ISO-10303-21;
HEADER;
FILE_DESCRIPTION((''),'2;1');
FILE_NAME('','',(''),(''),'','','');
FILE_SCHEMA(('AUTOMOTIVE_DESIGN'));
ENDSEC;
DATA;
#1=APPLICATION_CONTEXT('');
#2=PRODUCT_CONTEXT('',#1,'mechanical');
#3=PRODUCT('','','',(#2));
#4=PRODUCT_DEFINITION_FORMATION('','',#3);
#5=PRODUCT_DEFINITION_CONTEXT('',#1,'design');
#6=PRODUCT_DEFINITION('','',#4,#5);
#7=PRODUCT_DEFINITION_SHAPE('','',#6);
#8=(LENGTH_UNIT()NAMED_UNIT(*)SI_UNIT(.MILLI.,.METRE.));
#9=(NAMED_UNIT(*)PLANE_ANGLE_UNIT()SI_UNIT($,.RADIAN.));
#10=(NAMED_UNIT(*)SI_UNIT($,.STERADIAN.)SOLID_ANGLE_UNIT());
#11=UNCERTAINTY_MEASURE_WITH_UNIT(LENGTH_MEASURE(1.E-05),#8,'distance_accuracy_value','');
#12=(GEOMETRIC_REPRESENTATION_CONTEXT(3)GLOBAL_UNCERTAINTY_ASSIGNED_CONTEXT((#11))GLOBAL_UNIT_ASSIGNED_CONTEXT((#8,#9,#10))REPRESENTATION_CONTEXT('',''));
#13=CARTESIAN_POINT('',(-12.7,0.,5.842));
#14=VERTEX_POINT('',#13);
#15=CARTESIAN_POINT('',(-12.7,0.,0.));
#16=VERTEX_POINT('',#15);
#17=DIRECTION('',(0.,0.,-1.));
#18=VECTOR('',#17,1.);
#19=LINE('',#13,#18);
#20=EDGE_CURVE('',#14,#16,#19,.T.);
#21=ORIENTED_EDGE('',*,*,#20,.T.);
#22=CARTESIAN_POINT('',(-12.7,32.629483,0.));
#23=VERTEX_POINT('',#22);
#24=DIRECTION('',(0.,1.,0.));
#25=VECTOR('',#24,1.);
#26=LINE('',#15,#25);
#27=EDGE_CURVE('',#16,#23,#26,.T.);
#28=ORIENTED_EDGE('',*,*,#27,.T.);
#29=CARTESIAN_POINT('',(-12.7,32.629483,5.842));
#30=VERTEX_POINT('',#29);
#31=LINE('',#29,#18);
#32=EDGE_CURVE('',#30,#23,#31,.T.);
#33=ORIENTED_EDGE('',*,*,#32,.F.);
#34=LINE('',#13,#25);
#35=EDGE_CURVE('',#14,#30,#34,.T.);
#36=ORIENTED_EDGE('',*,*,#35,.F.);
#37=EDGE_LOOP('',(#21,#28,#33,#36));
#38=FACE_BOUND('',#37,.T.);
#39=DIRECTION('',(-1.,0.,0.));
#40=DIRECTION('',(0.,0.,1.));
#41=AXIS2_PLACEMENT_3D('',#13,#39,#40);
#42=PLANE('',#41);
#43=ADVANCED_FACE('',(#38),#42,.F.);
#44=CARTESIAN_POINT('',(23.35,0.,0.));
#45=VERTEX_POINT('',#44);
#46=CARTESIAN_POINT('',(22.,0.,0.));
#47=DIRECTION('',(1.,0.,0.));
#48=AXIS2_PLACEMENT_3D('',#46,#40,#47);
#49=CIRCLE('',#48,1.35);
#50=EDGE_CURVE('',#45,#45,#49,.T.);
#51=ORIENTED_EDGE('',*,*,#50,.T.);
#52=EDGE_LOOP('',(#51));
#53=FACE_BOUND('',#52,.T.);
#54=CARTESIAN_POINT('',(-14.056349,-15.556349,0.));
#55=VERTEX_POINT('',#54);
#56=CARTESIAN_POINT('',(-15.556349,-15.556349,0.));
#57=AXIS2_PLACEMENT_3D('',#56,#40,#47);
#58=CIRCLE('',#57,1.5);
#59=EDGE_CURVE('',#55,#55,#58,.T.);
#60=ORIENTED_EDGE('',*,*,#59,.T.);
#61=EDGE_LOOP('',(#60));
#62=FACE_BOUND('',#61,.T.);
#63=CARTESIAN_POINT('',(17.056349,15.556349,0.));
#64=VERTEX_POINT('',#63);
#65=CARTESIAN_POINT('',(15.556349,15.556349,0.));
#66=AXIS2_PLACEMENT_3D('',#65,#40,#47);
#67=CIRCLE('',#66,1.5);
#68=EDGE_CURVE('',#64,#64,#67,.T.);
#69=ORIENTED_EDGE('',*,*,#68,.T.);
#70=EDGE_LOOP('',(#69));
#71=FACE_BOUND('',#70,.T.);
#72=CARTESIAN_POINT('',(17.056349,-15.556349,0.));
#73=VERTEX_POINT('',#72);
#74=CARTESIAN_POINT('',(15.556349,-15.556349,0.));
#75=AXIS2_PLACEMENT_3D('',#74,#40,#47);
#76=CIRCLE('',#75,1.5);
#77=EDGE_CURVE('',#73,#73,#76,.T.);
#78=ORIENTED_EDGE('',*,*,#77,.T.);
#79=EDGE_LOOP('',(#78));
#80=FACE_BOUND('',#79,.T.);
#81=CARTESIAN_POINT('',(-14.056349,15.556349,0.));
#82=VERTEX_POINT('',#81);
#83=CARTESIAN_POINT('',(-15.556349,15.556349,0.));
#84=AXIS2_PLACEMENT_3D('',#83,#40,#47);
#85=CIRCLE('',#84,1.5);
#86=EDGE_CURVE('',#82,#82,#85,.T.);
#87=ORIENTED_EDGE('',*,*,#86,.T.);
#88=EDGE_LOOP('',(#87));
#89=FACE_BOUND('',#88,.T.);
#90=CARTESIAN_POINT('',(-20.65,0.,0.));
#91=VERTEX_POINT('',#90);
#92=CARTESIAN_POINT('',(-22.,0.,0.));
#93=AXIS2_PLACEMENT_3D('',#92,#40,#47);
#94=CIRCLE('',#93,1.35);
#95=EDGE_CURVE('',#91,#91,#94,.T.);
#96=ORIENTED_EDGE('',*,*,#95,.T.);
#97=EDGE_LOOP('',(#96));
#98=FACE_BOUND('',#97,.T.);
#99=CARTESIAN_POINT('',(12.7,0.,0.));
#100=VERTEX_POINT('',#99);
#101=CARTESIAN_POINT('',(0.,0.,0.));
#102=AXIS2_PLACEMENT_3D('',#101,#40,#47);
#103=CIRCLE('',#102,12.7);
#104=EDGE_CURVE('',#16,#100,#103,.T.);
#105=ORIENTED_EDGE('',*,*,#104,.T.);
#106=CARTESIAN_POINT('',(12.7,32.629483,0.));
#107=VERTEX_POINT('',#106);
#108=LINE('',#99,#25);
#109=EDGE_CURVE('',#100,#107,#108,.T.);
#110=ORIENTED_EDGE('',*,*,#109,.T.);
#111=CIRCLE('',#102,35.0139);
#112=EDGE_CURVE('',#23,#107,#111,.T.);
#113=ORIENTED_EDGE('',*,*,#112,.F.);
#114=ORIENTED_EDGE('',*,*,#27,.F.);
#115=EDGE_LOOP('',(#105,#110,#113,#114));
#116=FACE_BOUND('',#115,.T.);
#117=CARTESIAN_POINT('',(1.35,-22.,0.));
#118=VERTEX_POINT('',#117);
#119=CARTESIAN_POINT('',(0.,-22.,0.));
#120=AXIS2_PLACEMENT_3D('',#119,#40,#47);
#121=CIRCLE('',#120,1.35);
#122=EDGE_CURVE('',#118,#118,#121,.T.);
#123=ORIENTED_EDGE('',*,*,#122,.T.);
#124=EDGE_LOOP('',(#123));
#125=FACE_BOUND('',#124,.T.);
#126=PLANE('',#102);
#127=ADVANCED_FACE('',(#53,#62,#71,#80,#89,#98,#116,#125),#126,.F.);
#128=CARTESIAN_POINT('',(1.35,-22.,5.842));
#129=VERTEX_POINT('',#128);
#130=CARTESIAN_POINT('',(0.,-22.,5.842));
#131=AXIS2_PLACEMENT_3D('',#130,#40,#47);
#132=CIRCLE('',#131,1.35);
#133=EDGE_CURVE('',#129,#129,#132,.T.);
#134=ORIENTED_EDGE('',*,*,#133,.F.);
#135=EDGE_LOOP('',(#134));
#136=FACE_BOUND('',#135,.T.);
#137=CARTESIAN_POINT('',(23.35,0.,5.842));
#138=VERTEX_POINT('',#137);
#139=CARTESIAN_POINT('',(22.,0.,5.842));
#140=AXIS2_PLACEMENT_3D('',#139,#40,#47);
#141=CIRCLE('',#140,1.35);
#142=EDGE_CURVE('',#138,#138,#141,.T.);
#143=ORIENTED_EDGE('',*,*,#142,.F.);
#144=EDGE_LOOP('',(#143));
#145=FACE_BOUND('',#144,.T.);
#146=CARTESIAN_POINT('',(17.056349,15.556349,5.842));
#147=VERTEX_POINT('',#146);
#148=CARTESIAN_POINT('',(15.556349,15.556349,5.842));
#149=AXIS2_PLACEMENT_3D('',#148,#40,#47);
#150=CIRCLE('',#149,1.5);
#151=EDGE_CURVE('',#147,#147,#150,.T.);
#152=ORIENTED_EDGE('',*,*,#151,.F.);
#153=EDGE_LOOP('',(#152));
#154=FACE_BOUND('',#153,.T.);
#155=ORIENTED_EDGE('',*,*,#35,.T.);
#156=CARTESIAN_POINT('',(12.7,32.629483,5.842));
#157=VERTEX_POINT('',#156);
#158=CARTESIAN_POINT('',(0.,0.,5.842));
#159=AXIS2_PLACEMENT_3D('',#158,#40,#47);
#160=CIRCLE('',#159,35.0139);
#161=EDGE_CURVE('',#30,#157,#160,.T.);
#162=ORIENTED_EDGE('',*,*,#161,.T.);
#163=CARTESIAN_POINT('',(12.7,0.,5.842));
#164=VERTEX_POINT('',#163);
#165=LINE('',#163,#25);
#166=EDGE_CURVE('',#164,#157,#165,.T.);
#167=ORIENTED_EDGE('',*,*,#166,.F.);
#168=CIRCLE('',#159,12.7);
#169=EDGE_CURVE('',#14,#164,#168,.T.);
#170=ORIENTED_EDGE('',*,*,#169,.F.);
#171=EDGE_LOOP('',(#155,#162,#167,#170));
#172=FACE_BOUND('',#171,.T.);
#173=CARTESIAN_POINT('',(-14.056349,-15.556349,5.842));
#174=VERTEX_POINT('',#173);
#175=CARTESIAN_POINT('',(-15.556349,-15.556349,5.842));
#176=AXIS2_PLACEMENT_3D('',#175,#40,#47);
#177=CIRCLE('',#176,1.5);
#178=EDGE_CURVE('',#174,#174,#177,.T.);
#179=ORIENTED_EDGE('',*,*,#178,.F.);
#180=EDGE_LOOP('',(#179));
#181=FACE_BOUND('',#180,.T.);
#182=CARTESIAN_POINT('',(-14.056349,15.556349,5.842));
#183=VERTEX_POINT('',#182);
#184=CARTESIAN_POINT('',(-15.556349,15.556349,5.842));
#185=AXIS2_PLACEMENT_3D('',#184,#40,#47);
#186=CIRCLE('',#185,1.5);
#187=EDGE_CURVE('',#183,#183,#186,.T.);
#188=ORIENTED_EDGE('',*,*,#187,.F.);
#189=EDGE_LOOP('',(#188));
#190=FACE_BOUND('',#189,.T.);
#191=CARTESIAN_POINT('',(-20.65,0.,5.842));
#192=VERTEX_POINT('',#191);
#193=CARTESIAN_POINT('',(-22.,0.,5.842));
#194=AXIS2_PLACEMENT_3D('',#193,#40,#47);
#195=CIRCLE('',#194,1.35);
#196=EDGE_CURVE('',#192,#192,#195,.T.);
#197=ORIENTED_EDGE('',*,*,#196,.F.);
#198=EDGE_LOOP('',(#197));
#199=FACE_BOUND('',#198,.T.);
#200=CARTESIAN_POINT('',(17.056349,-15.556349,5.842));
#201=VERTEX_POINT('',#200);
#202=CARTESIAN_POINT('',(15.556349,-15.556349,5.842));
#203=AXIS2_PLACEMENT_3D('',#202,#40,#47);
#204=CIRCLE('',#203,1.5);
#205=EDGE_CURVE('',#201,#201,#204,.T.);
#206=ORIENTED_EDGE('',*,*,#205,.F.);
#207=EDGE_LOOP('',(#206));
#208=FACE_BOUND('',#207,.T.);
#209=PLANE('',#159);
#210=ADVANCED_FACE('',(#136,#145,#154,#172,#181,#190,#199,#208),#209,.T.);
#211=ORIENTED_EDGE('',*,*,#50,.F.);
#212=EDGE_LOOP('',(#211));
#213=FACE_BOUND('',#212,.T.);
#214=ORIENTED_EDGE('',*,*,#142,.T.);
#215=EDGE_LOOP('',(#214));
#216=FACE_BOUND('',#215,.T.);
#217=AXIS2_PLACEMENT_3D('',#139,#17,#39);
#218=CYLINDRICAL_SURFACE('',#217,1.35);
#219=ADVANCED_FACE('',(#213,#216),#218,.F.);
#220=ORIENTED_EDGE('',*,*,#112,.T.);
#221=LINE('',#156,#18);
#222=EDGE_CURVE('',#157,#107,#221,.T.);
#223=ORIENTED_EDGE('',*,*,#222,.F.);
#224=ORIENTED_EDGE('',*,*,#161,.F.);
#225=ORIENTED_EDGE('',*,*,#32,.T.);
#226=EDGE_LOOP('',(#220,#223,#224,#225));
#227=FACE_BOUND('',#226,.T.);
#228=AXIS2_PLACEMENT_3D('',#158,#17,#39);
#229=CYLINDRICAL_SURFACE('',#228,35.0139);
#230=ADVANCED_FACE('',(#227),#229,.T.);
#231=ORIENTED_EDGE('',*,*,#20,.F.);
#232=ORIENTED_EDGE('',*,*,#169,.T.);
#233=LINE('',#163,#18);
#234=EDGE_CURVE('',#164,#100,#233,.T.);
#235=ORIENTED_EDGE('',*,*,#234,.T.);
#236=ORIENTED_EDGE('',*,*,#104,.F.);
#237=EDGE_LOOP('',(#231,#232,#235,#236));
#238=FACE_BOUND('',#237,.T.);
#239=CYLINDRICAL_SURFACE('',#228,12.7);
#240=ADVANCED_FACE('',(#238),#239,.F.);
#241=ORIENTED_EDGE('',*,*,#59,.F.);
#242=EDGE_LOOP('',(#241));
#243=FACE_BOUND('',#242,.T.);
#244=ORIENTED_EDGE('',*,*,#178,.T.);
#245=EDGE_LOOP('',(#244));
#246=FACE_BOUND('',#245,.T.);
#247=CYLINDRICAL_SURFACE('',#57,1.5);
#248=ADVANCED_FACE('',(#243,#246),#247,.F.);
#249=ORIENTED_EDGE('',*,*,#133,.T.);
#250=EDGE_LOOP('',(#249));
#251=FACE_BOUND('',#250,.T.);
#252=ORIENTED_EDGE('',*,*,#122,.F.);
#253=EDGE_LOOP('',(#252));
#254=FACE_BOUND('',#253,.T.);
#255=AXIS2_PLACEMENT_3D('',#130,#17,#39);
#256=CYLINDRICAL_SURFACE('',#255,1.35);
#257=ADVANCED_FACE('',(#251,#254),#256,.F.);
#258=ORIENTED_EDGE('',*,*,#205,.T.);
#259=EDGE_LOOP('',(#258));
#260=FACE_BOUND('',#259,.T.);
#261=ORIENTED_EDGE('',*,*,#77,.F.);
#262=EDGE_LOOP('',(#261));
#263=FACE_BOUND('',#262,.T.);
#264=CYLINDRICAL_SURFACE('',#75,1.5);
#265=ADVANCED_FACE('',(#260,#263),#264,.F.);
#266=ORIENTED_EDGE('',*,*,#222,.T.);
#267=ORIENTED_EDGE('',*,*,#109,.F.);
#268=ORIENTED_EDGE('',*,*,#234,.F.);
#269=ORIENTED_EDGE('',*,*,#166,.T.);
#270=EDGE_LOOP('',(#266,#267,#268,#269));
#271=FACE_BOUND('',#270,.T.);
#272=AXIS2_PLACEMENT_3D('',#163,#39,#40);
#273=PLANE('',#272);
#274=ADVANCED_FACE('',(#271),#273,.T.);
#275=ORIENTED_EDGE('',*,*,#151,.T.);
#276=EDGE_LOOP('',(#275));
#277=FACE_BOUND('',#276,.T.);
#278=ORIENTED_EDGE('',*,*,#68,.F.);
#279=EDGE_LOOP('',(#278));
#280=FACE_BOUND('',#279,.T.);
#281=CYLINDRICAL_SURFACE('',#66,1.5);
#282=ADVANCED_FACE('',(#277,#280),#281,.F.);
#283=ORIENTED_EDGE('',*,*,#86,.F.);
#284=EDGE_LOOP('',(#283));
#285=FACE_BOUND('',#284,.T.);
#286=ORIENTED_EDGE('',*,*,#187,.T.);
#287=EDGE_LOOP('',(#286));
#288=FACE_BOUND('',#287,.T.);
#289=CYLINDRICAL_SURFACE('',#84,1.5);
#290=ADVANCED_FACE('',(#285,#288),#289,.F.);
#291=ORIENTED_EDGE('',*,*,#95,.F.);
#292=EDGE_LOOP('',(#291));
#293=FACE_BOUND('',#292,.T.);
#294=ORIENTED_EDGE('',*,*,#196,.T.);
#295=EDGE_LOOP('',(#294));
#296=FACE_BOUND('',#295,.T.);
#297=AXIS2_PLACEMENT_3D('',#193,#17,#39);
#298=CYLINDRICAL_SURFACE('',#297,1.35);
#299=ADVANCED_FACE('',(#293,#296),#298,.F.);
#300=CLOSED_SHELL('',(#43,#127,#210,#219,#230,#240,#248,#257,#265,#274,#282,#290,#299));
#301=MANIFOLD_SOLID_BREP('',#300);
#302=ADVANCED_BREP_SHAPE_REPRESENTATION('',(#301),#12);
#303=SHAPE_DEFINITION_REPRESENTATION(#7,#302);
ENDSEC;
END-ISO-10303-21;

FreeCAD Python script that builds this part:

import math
import FreeCAD as App
import Part
import Sketcher
Q = App.Units.Quantity

doc = App.newDocument("Part")
params = doc.addObject("Spreadsheet::Sheet", "Params")
for row, (alias, value) in enumerate([
    ("sketch1_radius", "0.5 in"),
    ("pad1_length", "0.23 in"),
], start=1):
    params.set(f"A{row}", alias)
    params.set(f"B{row}", "=" + value)
    params.setAlias(f"B{row}", alias)

body = doc.addObject("PartDesign::Body", "Body")

sketch1 = doc.addObject("Sketcher::SketchObject", "Sketch")
body.addObject(sketch1)
sketch1.AttachmentSupport = (doc.XY_Plane, [""])
sketch1.MapMode = "FlatFace"
sketch1.addGeometry([
    Part.LineSegment(App.Vector(-12.7, 0, 0), App.Vector(-12.7, 32.629483, 0)),
    Part.ArcOfCircle(Part.Circle(App.Vector(0, 0, 0), App.Vector(0, 0, 1), 35.0139), math.radians(111.26691), math.radians(428.73309)),
    Part.LineSegment(App.Vector(12.7, 32.629483, 0), App.Vector(12.7, 0, 0)),
    Part.ArcOfCircle(Part.Circle(App.Vector(0, 0, 0), App.Vector(0, 0, 1), 12.7), math.radians(180), math.radians(360)),
    Part.Circle(App.Vector(0, -22, 0), App.Vector(0, 0, 1), 1.35),
    Part.Circle(App.Vector(-22, 0, 0), App.Vector(0, 0, 1), 1.35),
    Part.Circle(App.Vector(22, 0, 0), App.Vector(0, 0, 1), 1.35),
], False)
sketch1.addConstraint([
    Sketcher.Constraint("Coincident", 0, 2, 1, 1),
    Sketcher.Constraint("Coincident", 1, 2, 2, 1),
    Sketcher.Constraint("Tangent", 2, 2, 3, 2),
    Sketcher.Constraint("Tangent", 3, 1, 0, 1),
    Sketcher.Constraint("Vertical", 0),
    Sketcher.Constraint("Vertical", 2),
    Sketcher.Constraint("Coincident", 1, 3, -1, 1),
    Sketcher.Constraint("Coincident", 3, 3, -1, 1),
    Sketcher.Constraint("Equal", 4, 5),
    Sketcher.Constraint("Equal", 5, 6),
    Sketcher.Constraint("Symmetric", 5, 3, 6, 3, -1, 1),
    Sketcher.Constraint("PointOnObject", 4, 3, -2),
    Sketcher.Constraint("PointOnObject", 5, 3, -1),
    Sketcher.Constraint("Radius", 3, Q("0.5 in")),
    Sketcher.Constraint("Radius", 1, Q("1.3785 in")),
    Sketcher.Constraint("Diameter", 4, Q("2.7 mm")),
    Sketcher.Constraint("DistanceY", 4, 3, -1, 1, Q("22 mm")),
    Sketcher.Constraint("DistanceX", 5, 3, -1, 1, Q("22 mm")),
])
sketch1.setExpression("Constraints[13]", "Params.sketch1_radius")
pad1 = doc.addObject("PartDesign::Pad", "Pad")
body.addObject(pad1)
pad1.Profile = sketch1
pad1.setExpression("Length", "Params.pad1_length")

sketch2 = doc.addObject("Sketcher::SketchObject", "Sketch001")
body.addObject(sketch2)
sketch2.AttachmentSupport = (doc.XY_Plane, [""])
sketch2.MapMode = "FlatFace"
sketch2.AttachmentOffset = App.Placement(App.Vector(0, 0, 0.23 * 25.4), App.Rotation())
sketch2.addGeometry([
    Part.Circle(App.Vector(-15.556349, -15.556349, 0), App.Vector(0, 0, 1), 1.5),
    Part.Circle(App.Vector(-15.556349, 15.556349, 0), App.Vector(0, 0, 1), 1.5),
    Part.Circle(App.Vector(15.556349, 15.556349, 0), App.Vector(0, 0, 1), 1.5),
    Part.Circle(App.Vector(15.556349, -15.556349, 0), App.Vector(0, 0, 1), 1.5),
], False)
sketch2.addConstraint([
    Sketcher.Constraint("Equal", 0, 1),
    Sketcher.Constraint("Equal", 1, 2),
    Sketcher.Constraint("Equal", 2, 3),
    Sketcher.Constraint("Symmetric", 0, 3, 2, 3, -1, 1),
    Sketcher.Constraint("Symmetric", 1, 3, 3, 3, -1, 1),
    Sketcher.Constraint("Symmetric", 1, 3, 2, 3, -2),
    Sketcher.Constraint("Diameter", 0, Q("3 mm")),
    Sketcher.Constraint("DistanceY", 0, 3, 1, 3, Q("31.112698 mm")),
    Sketcher.Constraint("DistanceX", 1, 3, 2, 3, Q("31.112698 mm")),
])
pocket1 = doc.addObject("PartDesign::Pocket", "Pocket")
body.addObject(pocket1)
pocket1.Profile = sketch2
pocket1.Type = "ThroughAll"

doc.recompute()
